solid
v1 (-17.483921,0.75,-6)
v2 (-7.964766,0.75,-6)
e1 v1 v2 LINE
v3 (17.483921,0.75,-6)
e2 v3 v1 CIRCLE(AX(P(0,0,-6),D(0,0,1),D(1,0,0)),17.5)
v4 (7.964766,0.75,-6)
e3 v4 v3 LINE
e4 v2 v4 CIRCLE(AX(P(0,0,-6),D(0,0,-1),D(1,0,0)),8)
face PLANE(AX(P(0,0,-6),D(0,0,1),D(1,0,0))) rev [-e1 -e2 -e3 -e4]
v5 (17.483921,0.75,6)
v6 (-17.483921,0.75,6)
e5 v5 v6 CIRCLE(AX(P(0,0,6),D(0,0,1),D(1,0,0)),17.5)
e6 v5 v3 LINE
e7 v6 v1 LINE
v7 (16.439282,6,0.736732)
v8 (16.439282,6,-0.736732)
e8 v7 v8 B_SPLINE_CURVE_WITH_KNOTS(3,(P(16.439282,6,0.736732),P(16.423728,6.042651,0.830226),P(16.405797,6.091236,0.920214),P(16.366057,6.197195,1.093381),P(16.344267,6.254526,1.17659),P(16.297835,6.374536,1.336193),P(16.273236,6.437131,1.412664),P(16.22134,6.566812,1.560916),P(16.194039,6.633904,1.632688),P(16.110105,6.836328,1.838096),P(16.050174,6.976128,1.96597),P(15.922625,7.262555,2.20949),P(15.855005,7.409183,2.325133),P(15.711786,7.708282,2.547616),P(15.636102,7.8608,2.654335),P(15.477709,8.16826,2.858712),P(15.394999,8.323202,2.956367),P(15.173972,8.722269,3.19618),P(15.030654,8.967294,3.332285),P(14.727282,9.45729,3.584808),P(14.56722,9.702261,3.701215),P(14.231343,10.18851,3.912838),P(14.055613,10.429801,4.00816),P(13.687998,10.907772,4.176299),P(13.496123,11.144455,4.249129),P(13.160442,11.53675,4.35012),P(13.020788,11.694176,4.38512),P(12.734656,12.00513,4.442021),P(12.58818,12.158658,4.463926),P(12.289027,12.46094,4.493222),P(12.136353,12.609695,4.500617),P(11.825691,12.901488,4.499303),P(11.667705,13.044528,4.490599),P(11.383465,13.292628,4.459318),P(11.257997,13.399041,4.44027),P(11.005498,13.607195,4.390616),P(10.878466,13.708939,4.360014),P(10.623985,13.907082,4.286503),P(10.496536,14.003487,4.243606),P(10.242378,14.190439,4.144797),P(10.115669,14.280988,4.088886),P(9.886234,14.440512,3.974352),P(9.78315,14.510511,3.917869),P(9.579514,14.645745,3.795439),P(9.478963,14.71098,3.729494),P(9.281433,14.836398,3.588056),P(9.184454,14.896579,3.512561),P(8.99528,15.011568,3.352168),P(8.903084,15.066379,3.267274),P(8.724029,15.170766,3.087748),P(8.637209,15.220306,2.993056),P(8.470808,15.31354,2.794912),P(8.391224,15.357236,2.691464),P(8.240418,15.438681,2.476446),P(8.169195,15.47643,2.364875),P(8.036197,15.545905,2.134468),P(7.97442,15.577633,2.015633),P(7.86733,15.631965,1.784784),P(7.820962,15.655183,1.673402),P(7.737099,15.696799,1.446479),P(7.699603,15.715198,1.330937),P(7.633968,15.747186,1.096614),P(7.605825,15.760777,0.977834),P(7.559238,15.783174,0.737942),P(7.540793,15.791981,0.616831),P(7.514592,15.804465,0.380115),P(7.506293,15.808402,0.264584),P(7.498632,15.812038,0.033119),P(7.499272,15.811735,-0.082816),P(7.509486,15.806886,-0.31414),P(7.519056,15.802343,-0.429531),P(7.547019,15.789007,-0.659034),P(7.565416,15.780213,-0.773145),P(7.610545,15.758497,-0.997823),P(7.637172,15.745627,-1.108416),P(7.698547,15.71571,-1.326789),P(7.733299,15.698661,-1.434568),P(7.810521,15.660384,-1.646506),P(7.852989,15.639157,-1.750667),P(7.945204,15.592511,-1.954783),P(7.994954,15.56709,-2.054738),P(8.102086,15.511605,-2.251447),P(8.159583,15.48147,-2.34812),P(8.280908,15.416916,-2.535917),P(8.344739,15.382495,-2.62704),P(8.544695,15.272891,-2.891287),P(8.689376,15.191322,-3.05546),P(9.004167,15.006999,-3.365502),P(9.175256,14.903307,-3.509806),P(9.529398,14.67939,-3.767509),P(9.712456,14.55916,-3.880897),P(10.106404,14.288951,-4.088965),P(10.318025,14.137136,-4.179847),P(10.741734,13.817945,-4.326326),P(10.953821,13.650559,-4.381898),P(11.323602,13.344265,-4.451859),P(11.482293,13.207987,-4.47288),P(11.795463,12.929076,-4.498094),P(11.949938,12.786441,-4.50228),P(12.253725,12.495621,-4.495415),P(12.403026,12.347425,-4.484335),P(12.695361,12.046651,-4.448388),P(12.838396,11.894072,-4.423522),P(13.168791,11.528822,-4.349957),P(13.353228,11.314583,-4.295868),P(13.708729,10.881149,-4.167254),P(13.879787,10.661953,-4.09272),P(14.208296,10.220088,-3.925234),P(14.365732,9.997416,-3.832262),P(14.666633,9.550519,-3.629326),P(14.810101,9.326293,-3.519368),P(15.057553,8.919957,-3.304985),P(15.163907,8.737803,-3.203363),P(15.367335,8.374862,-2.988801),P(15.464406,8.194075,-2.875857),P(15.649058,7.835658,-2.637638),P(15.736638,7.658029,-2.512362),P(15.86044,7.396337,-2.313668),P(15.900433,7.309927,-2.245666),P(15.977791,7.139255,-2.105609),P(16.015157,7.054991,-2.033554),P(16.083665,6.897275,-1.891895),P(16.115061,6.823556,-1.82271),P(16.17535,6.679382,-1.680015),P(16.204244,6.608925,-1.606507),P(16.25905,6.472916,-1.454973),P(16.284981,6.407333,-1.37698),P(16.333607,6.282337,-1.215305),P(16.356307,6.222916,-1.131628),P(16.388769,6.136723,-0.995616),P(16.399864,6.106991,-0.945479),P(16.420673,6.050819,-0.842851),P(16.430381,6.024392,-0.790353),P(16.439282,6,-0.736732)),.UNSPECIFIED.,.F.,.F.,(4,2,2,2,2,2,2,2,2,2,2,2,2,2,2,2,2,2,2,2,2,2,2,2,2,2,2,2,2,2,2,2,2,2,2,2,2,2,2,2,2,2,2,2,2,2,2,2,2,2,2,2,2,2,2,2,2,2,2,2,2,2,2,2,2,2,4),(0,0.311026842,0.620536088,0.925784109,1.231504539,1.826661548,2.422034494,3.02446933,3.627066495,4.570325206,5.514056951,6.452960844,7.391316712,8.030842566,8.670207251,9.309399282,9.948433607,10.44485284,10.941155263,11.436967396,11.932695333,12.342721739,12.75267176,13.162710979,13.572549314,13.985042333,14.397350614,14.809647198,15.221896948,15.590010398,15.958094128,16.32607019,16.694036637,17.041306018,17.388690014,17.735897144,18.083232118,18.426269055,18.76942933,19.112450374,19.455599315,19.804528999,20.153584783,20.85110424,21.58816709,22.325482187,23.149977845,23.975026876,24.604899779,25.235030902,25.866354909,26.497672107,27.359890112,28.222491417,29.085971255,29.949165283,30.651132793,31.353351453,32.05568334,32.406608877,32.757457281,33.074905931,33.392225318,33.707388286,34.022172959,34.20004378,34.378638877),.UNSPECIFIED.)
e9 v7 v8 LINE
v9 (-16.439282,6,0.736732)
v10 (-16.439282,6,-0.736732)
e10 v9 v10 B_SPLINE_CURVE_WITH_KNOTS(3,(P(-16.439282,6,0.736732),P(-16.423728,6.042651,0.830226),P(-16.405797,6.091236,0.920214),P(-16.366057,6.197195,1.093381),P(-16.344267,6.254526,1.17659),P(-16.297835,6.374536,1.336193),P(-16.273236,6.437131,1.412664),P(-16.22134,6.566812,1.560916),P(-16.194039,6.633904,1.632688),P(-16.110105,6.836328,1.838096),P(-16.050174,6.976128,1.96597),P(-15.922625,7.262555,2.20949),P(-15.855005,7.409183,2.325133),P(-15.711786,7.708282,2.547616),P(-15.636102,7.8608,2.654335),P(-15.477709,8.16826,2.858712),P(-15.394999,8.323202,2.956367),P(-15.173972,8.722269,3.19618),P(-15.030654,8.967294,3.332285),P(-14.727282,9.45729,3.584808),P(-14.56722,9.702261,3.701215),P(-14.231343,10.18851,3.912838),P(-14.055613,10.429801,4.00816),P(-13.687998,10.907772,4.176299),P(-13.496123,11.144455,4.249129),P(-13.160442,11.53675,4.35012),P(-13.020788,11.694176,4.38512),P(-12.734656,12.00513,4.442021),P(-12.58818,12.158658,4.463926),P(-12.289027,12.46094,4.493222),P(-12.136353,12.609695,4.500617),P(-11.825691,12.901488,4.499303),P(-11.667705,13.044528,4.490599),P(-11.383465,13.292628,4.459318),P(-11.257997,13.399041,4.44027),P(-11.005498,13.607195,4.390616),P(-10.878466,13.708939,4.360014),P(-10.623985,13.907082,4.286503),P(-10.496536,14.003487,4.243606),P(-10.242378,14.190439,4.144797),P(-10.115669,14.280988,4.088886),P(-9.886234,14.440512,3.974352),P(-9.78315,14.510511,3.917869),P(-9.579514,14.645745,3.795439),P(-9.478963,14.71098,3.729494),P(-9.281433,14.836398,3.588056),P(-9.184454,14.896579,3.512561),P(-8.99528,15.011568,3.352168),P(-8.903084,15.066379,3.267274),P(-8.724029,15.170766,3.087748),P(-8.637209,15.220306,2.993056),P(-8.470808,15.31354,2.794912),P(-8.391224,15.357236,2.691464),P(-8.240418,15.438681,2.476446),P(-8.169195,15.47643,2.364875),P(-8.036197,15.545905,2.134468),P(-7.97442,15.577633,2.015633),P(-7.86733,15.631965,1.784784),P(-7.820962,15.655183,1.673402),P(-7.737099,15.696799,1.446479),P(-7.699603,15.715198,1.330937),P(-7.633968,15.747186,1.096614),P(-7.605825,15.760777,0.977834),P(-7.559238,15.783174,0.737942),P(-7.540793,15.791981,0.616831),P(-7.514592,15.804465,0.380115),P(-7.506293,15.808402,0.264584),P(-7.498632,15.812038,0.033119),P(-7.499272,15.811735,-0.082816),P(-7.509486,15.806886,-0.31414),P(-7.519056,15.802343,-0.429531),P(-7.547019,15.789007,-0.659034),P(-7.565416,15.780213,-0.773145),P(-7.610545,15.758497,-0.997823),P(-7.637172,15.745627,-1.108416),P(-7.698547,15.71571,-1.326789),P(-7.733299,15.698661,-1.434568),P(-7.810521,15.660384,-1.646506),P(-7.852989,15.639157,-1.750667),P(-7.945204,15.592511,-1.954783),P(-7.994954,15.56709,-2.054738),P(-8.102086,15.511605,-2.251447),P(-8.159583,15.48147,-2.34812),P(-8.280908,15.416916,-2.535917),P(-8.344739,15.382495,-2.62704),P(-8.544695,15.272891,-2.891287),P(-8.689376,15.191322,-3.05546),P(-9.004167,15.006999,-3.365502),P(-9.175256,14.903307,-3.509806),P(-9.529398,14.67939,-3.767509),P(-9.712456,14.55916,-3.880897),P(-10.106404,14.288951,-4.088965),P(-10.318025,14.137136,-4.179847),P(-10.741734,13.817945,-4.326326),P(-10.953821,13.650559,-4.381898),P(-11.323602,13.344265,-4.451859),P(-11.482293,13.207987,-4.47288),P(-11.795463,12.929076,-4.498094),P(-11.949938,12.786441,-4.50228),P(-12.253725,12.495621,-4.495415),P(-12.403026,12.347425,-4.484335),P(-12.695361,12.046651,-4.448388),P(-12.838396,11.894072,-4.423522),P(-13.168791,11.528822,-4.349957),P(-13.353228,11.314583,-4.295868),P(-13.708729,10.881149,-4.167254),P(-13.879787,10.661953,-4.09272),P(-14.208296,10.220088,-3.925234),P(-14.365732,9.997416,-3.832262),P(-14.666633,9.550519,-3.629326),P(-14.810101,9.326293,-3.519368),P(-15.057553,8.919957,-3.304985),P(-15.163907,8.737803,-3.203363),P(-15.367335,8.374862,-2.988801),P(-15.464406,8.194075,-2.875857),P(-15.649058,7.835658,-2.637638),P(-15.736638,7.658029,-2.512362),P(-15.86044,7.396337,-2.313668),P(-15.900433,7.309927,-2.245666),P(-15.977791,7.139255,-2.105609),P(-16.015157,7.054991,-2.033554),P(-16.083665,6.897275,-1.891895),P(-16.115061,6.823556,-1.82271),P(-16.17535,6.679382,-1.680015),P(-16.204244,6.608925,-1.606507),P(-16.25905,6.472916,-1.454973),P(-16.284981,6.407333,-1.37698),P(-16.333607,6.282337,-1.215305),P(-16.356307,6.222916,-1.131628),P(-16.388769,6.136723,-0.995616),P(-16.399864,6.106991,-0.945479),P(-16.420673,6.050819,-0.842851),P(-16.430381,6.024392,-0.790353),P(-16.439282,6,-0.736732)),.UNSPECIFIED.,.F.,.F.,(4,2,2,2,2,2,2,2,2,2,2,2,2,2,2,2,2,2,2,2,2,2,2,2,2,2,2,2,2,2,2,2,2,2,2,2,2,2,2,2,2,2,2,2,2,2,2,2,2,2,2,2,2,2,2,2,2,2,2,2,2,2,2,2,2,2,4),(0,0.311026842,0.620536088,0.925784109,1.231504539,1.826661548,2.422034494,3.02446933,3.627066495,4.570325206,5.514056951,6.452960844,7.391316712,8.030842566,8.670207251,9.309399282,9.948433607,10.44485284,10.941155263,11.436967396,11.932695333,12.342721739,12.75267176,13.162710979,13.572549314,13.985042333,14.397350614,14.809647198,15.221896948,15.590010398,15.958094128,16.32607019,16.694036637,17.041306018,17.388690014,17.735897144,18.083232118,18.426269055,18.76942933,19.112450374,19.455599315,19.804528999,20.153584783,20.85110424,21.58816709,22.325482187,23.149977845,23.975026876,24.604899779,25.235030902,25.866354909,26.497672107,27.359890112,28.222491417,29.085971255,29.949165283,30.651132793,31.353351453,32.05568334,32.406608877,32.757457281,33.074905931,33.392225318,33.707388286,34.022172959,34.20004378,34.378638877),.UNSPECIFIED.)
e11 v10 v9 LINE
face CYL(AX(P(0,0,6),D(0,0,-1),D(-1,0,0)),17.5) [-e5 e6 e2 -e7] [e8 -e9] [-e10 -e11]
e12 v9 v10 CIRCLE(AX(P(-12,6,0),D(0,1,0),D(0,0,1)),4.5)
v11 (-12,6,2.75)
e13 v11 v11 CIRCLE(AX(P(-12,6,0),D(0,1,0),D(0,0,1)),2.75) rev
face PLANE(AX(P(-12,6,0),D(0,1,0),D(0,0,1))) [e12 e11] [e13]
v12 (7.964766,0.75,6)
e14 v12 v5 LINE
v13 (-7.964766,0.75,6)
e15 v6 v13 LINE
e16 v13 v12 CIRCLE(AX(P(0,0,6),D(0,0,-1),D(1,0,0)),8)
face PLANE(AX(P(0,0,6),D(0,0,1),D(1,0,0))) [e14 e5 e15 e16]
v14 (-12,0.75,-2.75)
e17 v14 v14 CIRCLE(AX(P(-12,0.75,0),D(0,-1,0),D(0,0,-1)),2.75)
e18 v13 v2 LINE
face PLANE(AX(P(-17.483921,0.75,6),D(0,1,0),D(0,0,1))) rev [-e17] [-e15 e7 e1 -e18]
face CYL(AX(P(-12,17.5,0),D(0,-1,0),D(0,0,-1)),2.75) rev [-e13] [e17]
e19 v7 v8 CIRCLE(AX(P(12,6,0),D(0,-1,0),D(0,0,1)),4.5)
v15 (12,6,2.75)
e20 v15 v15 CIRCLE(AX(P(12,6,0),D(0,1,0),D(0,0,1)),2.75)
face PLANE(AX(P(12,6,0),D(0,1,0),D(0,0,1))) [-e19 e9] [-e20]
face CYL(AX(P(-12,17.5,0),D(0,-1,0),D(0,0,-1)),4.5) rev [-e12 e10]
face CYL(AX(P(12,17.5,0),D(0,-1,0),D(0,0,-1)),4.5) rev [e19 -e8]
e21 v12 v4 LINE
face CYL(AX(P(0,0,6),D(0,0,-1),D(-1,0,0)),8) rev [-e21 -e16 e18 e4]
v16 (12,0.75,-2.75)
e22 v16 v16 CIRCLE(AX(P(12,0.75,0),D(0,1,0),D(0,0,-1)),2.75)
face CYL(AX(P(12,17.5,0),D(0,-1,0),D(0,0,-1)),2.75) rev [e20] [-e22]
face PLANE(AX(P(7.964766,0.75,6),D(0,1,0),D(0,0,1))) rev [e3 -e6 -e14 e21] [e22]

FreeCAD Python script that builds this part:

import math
import FreeCAD as App
import Part
import Sketcher

V = App.Vector

doc = App.newDocument("Part")
body = doc.addObject("PartDesign::Body", "Body")

sketch1 = body.newObject("Sketcher::SketchObject", "Sketch")
sketch1.AttachmentSupport = (doc.getObject("XY_Plane"), [""])
sketch1.MapMode = "FlatFace"
sketch1.addGeometry(Part.LineSegment(V(-17, 1, 0), V(-8, 1, 0)), False)
sketch1.addGeometry(Part.ArcOfCircle(Part.Circle(V(0, 0, 0), V(0, 0, 1), 8), math.radians(5), math.radians(175)), False)
sketch1.addGeometry(Part.LineSegment(V(8, 1, 0), V(17, 1, 0)), False)
sketch1.addGeometry(Part.ArcOfCircle(Part.Circle(V(0, 0, 0), V(0, 0, 1), 18), math.radians(2), math.radians(178)), False)
sketch1.addConstraint(Sketcher.Constraint("Coincident", 0, 2, 1, 2))
sketch1.addConstraint(Sketcher.Constraint("Coincident", 1, 1, 2, 1))
sketch1.addConstraint(Sketcher.Constraint("Coincident", 2, 2, 3, 1))
sketch1.addConstraint(Sketcher.Constraint("Coincident", 3, 2, 0, 1))
sketch1.addConstraint(Sketcher.Constraint("Horizontal", 0))
sketch1.addConstraint(Sketcher.Constraint("Horizontal", 2))
sketch1.addConstraint(Sketcher.Constraint("Coincident", 1, 3, -1, 1))
sketch1.addConstraint(Sketcher.Constraint("Coincident", 3, 3, -1, 1))
sketch1.addConstraint(Sketcher.Constraint("Horizontal", 0, 2, 1, 1))
sketch1.addConstraint(Sketcher.Constraint("Radius", 1, 8.0))
sketch1.addConstraint(Sketcher.Constraint("Radius", 3, 17.5))
sketch1.addConstraint(Sketcher.Constraint("DistanceY", -1, 1, 0, 2, 0.75))
pad1 = body.newObject("PartDesign::Pad", "Pad")
pad1.Profile = sketch1
pad1.Length = 12
pad1.Midplane = True

sketch2 = body.newObject("Sketcher::SketchObject", "Sketch001")
sketch2.AttachmentSupport = (doc.getObject("XZ_Plane"), [""])
sketch2.MapMode = "FlatFace"
sketch2.AttachmentOffset = App.Placement(V(0, 0, -0.75), App.Rotation())
sketch2.addGeometry(Part.Circle(V(-12, 0, 0), V(0, 0, 1), 2.8), False)
sketch2.addConstraint(Sketcher.Constraint("PointOnObject", 0, 3, -1))
sketch2.addConstraint(Sketcher.Constraint("Diameter", 0, 5.5))
sketch2.addConstraint(Sketcher.Constraint("DistanceX", 0, 3, -1, 1, 12.0))
pocket1 = body.newObject("PartDesign::Pocket", "Pocket")
pocket1.Profile = sketch2
pocket1.Type = "ThroughAll"

sketch3 = body.newObject("Sketcher::SketchObject", "Sketch002")
sketch3.AttachmentSupport = (doc.getObject("XZ_Plane"), [""])
sketch3.MapMode = "FlatFace"
sketch3.AttachmentOffset = App.Placement(V(0, 0, -6), App.Rotation())
sketch3.addGeometry(Part.Circle(V(-12, 0, 0), V(0, 0, 1), 4.5), False)
sketch3.addConstraint(Sketcher.Constraint("PointOnObject", 0, 3, -1))
sketch3.addConstraint(Sketcher.Constraint("Diameter", 0, 9.0))
sketch3.addConstraint(Sketcher.Constraint("DistanceX", 0, 3, -1, 1, 12.0))
pocket2 = body.newObject("PartDesign::Pocket", "Pocket001")
pocket2.Profile = sketch3
pocket2.Type = "ThroughAll"
doc.recompute()

mirrored = body.newObject("PartDesign::Mirrored", "Mirrored")
mirrored.Originals = [pocket1, pocket2]
mirrored.MirrorPlane = (doc.getObject("YZ_Plane"), [""])
body.Tip = mirrored

doc.recompute()
